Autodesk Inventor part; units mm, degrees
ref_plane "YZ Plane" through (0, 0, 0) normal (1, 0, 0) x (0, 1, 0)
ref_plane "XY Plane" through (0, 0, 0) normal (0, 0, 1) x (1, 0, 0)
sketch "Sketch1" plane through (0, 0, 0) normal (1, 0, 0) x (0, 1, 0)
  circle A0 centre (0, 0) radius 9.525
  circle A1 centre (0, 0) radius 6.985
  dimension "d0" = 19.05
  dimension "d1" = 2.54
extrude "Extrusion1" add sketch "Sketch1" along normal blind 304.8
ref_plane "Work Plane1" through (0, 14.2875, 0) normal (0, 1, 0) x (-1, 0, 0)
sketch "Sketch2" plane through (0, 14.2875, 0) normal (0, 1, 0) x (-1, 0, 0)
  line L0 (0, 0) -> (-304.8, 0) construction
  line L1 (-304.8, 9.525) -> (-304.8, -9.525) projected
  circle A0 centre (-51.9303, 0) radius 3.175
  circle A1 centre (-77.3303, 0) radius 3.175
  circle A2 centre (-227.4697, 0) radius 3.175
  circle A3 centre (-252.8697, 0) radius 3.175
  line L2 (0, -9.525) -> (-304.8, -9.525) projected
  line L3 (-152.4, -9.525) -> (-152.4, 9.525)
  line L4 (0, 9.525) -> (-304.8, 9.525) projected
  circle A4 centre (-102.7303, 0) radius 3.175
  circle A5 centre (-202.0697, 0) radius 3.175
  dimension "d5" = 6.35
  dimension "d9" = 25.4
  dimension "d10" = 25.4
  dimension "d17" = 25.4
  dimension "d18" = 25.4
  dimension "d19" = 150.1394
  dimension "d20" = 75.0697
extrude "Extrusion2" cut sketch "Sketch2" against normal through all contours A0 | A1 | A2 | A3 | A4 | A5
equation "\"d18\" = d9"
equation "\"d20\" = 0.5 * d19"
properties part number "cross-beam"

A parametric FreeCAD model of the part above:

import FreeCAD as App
import Part
import Sketcher

V = App.Vector
Q = App.Units.Quantity

doc = App.newDocument("Part")
params = doc.addObject("Spreadsheet::Sheet", "Params")
for row, (alias, value) in enumerate([
    ("sketch1_diameter", "0.75 in"),
    ("sketch1_diameter2", "0.55 in"),
    ("pad1_length", "12 in"),
    ("sketch2_diameter", "0.25 in"),
], start=1):
    params.set(f"A{row}", alias)
    params.set(f"B{row}", "=" + value)
    params.setAlias(f"B{row}", alias)

body = doc.addObject("PartDesign::Body", "Body")

sketch1 = doc.addObject("Sketcher::SketchObject", "Sketch")
body.addObject(sketch1)
sketch1.AttachmentSupport = (doc.YZ_Plane, [""])
sketch1.MapMode = "FlatFace"
sketch1.addGeometry([
    Part.Circle(V(0, 0, 0), V(0, 0, 1), 9.525),
    Part.Circle(V(0, 0, 0), V(0, 0, 1), 6.985),
], False)
sketch1.addConstraint([
    Sketcher.Constraint("Coincident", 0, 3, -1, 1),
    Sketcher.Constraint("Coincident", 1, 3, -1, 1),
    Sketcher.Constraint("Diameter", 0, Q("0.75 in")),
    Sketcher.Constraint("Diameter", 1, Q("0.55 in")),
])
sketch1.setExpression("Constraints[2]", "Params.sketch1_diameter")
sketch1.setExpression("Constraints[3]", "Params.sketch1_diameter2")
pad1 = doc.addObject("PartDesign::Pad", "Pad")
body.addObject(pad1)
pad1.Profile = sketch1
pad1.setExpression("Length", "Params.pad1_length")

sketch2 = doc.addObject("Sketcher::SketchObject", "Sketch001")
body.addObject(sketch2)
sketch2.AttachmentSupport = (doc.XZ_Plane, [""])
sketch2.MapMode = "FlatFace"
sketch2.AttachmentOffset = App.Placement(V(0, 0, -0.5625 * 25.4), App.Rotation())
sketch2.addGeometry([
    Part.Circle(V(51.9303, 0, 0), V(0, 0, 1), 3.175),
    Part.Circle(V(77.3303, 0, 0), V(0, 0, 1), 3.175),
    Part.Circle(V(227.4697, 0, 0), V(0, 0, 1), 3.175),
    Part.Circle(V(252.8697, 0, 0), V(0, 0, 1), 3.175),
    Part.Circle(V(102.7303, 0, 0), V(0, 0, 1), 3.175),
    Part.Circle(V(202.0697, 0, 0), V(0, 0, 1), 3.175),
], False)
sketch2.addConstraint([
    Sketcher.Constraint("Equal", 0, 1),
    Sketcher.Constraint("Equal", 1, 2),
    Sketcher.Constraint("Equal", 2, 3),
    Sketcher.Constraint("Equal", 3, 4),
    Sketcher.Constraint("Equal", 4, 5),
    Sketcher.Constraint("PointOnObject", 0, 3, -1),
    Sketcher.Constraint("PointOnObject", 1, 3, -1),
    Sketcher.Constraint("PointOnObject", 2, 3, -1),
    Sketcher.Constraint("PointOnObject", 3, 3, -1),
    Sketcher.Constraint("PointOnObject", 4, 3, -1),
    Sketcher.Constraint("PointOnObject", 5, 3, -1),
    Sketcher.Constraint("Diameter", 0, Q("0.25 in")),
    Sketcher.Constraint("DistanceX", 0, 3, 1, 3, Q("1 in")),
    Sketcher.Constraint("DistanceX", 2, 3, 3, 3, Q("1 in")),
    Sketcher.Constraint("DistanceX", 1, 3, 4, 3, Q("1 in")),
    Sketcher.Constraint("DistanceX", 5, 3, 2, 3, Q("1 in")),
    Sketcher.Constraint("DistanceX", 1, 3, 2, 3, Q("5.911 in")),
    Sketcher.Constraint("DistanceX", -1, 1, 0, 3, Q("2.0445 in")),
])
sketch2.setExpression("Constraints[11]", "Params.sketch2_diameter")
pocket1 = doc.addObject("PartDesign::Pocket", "Pocket")
body.addObject(pocket1)
pocket1.Profile = sketch2
pocket1.Type = "ThroughAll"
pocket1.Reversed = True

doc.recompute()
